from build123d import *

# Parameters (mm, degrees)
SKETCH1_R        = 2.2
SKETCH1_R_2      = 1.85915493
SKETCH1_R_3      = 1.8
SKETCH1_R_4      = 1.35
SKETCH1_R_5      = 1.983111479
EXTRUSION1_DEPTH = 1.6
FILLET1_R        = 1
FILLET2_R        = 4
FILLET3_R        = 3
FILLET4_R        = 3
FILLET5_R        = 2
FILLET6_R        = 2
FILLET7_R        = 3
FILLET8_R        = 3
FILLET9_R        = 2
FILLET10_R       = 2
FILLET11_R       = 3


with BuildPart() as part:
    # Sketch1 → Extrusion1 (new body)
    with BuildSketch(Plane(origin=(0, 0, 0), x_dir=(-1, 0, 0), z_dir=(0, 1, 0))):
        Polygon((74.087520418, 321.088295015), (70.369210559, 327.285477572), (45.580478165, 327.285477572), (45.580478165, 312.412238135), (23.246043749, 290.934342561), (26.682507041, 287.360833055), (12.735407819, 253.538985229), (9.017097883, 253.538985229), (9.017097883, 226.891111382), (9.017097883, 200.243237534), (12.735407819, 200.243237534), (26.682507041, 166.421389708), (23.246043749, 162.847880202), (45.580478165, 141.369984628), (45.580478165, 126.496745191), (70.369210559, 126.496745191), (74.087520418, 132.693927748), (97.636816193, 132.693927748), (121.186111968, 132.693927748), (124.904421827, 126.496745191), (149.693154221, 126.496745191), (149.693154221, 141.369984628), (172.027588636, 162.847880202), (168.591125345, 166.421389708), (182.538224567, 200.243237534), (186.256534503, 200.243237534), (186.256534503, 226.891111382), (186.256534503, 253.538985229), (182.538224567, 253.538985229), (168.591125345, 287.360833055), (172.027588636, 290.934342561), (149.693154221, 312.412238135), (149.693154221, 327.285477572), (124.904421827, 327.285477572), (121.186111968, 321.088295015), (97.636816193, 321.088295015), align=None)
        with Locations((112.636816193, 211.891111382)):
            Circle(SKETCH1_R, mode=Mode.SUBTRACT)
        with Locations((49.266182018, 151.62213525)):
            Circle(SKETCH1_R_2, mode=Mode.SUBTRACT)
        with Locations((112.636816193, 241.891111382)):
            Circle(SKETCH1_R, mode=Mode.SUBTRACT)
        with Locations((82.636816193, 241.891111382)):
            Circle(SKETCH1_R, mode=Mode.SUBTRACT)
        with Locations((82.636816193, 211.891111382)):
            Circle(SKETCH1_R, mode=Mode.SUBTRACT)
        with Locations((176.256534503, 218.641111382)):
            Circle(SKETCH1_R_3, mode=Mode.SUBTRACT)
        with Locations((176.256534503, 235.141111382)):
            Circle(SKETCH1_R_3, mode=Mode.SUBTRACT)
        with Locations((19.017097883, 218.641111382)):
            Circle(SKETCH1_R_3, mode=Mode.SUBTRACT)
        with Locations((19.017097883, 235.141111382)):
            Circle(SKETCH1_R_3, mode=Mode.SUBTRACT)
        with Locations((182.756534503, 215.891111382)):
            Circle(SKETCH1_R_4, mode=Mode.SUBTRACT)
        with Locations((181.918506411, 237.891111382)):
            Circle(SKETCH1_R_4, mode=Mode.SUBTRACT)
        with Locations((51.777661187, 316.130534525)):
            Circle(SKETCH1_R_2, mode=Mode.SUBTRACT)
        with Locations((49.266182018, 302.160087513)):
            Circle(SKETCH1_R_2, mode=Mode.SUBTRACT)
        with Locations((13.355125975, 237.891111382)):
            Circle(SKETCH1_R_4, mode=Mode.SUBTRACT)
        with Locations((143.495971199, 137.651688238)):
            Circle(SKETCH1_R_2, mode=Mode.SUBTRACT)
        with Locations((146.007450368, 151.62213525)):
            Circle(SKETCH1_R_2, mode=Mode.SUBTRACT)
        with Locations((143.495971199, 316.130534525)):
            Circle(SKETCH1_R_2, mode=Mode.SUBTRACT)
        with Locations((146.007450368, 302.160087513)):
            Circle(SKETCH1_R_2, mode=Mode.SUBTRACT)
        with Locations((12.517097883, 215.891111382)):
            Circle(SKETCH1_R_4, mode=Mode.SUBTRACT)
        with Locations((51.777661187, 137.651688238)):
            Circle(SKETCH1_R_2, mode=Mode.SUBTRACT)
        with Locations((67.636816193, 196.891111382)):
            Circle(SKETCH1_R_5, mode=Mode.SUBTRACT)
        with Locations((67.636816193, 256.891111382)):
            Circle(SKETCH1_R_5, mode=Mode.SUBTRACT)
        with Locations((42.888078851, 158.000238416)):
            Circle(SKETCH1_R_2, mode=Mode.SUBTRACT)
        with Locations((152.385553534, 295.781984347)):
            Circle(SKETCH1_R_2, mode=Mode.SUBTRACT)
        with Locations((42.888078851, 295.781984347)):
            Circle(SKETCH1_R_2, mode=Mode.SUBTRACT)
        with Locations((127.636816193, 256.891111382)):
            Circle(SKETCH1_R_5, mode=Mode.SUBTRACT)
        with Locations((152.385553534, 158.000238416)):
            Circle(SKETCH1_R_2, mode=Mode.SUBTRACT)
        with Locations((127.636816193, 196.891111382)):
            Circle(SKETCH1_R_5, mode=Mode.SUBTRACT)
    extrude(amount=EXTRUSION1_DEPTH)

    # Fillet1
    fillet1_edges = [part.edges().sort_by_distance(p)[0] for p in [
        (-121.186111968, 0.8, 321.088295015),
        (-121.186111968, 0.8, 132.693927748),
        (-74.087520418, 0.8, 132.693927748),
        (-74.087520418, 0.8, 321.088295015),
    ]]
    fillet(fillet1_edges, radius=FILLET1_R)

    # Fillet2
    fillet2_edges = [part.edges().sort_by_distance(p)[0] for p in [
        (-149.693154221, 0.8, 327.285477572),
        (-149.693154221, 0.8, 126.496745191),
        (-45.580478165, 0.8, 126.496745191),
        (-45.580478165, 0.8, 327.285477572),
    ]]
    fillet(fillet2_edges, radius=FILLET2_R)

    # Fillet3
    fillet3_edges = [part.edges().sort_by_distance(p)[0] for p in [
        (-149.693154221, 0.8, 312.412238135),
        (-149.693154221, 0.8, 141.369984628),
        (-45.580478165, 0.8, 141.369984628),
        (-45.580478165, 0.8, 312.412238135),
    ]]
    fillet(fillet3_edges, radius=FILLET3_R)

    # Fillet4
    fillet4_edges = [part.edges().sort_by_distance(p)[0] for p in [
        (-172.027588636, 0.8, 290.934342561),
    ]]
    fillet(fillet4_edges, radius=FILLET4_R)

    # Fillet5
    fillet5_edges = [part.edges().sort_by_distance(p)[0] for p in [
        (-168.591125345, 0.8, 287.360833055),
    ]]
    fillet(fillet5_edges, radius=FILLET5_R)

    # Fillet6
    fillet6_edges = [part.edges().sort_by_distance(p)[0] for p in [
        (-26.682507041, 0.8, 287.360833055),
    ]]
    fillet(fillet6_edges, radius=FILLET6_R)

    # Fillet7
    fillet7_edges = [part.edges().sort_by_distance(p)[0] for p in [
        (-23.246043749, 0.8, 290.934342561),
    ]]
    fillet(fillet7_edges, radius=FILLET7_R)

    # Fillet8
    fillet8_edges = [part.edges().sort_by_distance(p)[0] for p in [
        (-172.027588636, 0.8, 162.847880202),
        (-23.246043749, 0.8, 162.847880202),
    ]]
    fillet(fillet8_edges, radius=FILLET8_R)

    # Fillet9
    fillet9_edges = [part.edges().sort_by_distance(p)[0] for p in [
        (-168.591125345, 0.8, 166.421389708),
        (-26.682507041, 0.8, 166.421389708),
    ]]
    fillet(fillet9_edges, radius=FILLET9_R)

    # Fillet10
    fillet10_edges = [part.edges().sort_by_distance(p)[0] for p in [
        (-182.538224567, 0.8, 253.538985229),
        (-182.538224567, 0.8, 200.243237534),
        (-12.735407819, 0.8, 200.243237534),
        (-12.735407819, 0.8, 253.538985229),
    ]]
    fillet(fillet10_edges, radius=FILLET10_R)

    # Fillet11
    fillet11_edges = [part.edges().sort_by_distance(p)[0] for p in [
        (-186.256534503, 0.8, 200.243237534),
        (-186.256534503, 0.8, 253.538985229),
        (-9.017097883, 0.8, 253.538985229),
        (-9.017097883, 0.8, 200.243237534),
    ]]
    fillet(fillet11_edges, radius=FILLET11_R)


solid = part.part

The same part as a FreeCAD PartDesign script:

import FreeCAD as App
import Part
import Sketcher
from FreeCAD import Vector
Q = App.Units.Quantity


def edges_at(feature, points):
    """Names of the edges that pass closest to the given points."""
    edges = feature.Shape.Edges
    near = lambda p: min(range(len(edges)), key=lambda i: edges[i].distToShape(Part.Vertex(*p))[0])
    return sorted({f"Edge{near(p) + 1}" for p in points})

doc = App.newDocument("Part")
params = doc.addObject("Spreadsheet::Sheet", "Params")
for row, (alias, value) in enumerate([
    ("sketch1_diameter", "2.7 mm"),
    ("sketch1_diameter2", "3.6 mm"),
    ("sketch1_diameter3", "4.4 mm"),
    ("pad1_length", "1.6 mm"),
    ("fillet_radius", "1 mm"),
    ("fillet2_radius", "4 mm"),
    ("fillet3_radius", "3 mm"),
    ("fillet4_radius", "3 mm"),
    ("fillet5_radius", "2 mm"),
    ("fillet6_radius", "2 mm"),
    ("fillet7_radius", "3 mm"),
    ("fillet8_radius", "3 mm"),
    ("fillet9_radius", "2 mm"),
    ("fillet10_radius", "2 mm"),
    ("fillet11_radius", "3 mm"),
], start=1):
    params.set(f"A{row}", alias)
    params.set(f"B{row}", "=" + value)
    params.setAlias(f"B{row}", alias)

body = doc.addObject("PartDesign::Body", "Body")

# Sketch on XZ plane
sketch1 = body.newObject("Sketcher::SketchObject", "Sketch")
sketch1.AttachmentSupport = (doc.getObject("XZ_Plane"), [""])
sketch1.MapMode = "FlatFace"
sketch1.addGeometry(Part.LineSegment(Vector(-74.1, 321.1, 0), Vector(-70.4, 327.3, 0)), False)
sketch1.addGeometry(Part.LineSegment(Vector(-70.4, 327.3, 0), Vector(-45.6, 327.3, 0)), False)
sketch1.addGeometry(Part.LineSegment(Vector(-45.6, 327.3, 0), Vector(-45.6, 312.4, 0)), False)
sketch1.addGeometry(Part.LineSegment(Vector(-45.6, 312.4, 0), Vector(-23.2, 290.9, 0)), False)
sketch1.addGeometry(Part.LineSegment(Vector(-23.2, 290.9, 0), Vector(-26.7, 287.4, 0)), False)
sketch1.addGeometry(Part.LineSegment(Vector(-26.7, 287.4, 0), Vector(-12.7, 253.5, 0)), False)
sketch1.addGeometry(Part.LineSegment(Vector(-12.7, 253.5, 0), Vector(-9, 253.5, 0)), False)
sketch1.addGeometry(Part.LineSegment(Vector(-9, 253.5, 0), Vector(-9, 200.2, 0)), False)
sketch1.addGeometry(Part.LineSegment(Vector(-9, 200.2, 0), Vector(-12.7, 200.2, 0)), False)
sketch1.addGeometry(Part.LineSegment(Vector(-12.7, 200.2, 0), Vector(-26.7, 166.4, 0)), False)
sketch1.addGeometry(Part.LineSegment(Vector(-26.7, 166.4, 0), Vector(-23.2, 162.8, 0)), False)
sketch1.addGeometry(Part.LineSegment(Vector(-23.2, 162.8, 0), Vector(-45.6, 141.4, 0)), False)
sketch1.addGeometry(Part.LineSegment(Vector(-45.6, 141.4, 0), Vector(-45.6, 126.5, 0)), False)
sketch1.addGeometry(Part.LineSegment(Vector(-45.6, 126.5, 0), Vector(-70.4, 126.5, 0)), False)
sketch1.addGeometry(Part.LineSegment(Vector(-70.4, 126.5, 0), Vector(-74.1, 132.7, 0)), False)
sketch1.addGeometry(Part.LineSegment(Vector(-74.1, 132.7, 0), Vector(-121.2, 132.7, 0)), False)
sketch1.addGeometry(Part.LineSegment(Vector(-121.2, 132.7, 0), Vector(-124.9, 126.5, 0)), False)
sketch1.addGeometry(Part.LineSegment(Vector(-124.9, 126.5, 0), Vector(-149.7, 126.5, 0)), False)
sketch1.addGeometry(Part.LineSegment(Vector(-149.7, 126.5, 0), Vector(-149.7, 141.4, 0)), False)
sketch1.addGeometry(Part.LineSegment(Vector(-149.7, 141.4, 0), Vector(-172, 162.8, 0)), False)
sketch1.addGeometry(Part.LineSegment(Vector(-172, 162.8, 0), Vector(-168.6, 166.4, 0)), False)
sketch1.addGeometry(Part.LineSegment(Vector(-168.6, 166.4, 0), Vector(-182.5, 200.2, 0)), False)
sketch1.addGeometry(Part.LineSegment(Vector(-182.5, 200.2, 0), Vector(-186.3, 200.2, 0)), False)
sketch1.addGeometry(Part.LineSegment(Vector(-186.3, 200.2, 0), Vector(-186.3, 253.5, 0)), False)
sketch1.addGeometry(Part.LineSegment(Vector(-186.3, 253.5, 0), Vector(-182.5, 253.5, 0)), False)
sketch1.addGeometry(Part.LineSegment(Vector(-182.5, 253.5, 0), Vector(-168.6, 287.4, 0)), False)
sketch1.addGeometry(Part.LineSegment(Vector(-168.6, 287.4, 0), Vector(-172, 290.9, 0)), False)
sketch1.addGeometry(Part.LineSegment(Vector(-172, 290.9, 0), Vector(-149.7, 312.4, 0)), False)
sketch1.addGeometry(Part.LineSegment(Vector(-149.7, 312.4, 0), Vector(-149.7, 327.3, 0)), False)
sketch1.addGeometry(Part.LineSegment(Vector(-149.7, 327.3, 0), Vector(-124.9, 327.3, 0)), False)
sketch1.addGeometry(Part.LineSegment(Vector(-124.9, 327.3, 0), Vector(-121.2, 321.1, 0)), False)
sketch1.addGeometry(Part.LineSegment(Vector(-121.2, 321.1, 0), Vector(-74.1, 321.1, 0)), False)
sketch1.addGeometry(Part.Circle(Vector(-51.8, 137.7, 0), Vector(0, 0, 1), 1.9), False)
sketch1.addGeometry(Part.Circle(Vector(-42.9, 158, 0), Vector(0, 0, 1), 1.9), False)
sketch1.addGeometry(Part.Circle(Vector(-49.3, 151.6, 0), Vector(0, 0, 1), 1.9), False)
sketch1.addGeometry(Part.Circle(Vector(-12.5, 215.9, 0), Vector(0, 0, 1), 1.4), False)
sketch1.addGeometry(Part.Circle(Vector(-19, 218.6, 0), Vector(0, 0, 1), 1.8), False)
sketch1.addGeometry(Part.Circle(Vector(-67.6, 196.9, 0), Vector(0, 0, 1), 2), False)
sketch1.addGeometry(Part.Circle(Vector(-82.6, 211.9, 0), Vector(0, 0, 1), 2.2), False)
sketch1.addGeometry(Part.Circle(Vector(-143.5, 137.7, 0), Vector(0, 0, 1), 1.9), False)
sketch1.addGeometry(Part.Circle(Vector(-146, 151.6, 0), Vector(0, 0, 1), 1.9), False)
sketch1.addGeometry(Part.Circle(Vector(-152.4, 158, 0), Vector(0, 0, 1), 1.9), False)
sketch1.addGeometry(Part.Circle(Vector(-127.6, 196.9, 0), Vector(0, 0, 1), 2), False)
sketch1.addGeometry(Part.Circle(Vector(-112.6, 211.9, 0), Vector(0, 0, 1), 2.2), False)
sketch1.addGeometry(Part.Circle(Vector(-176.3, 218.6, 0), Vector(0, 0, 1), 1.8), False)
sketch1.addGeometry(Part.Circle(Vector(-182.8, 215.9, 0), Vector(0, 0, 1), 1.4), False)
sketch1.addGeometry(Part.Circle(Vector(-13.4, 237.9, 0), Vector(0, 0, 1), 1.4), False)
sketch1.addGeometry(Part.Circle(Vector(-19, 235.1, 0), Vector(0, 0, 1), 1.8), False)
sketch1.addGeometry(Part.Circle(Vector(-82.6, 241.9, 0), Vector(0, 0, 1), 2.2), False)
sketch1.addGeometry(Part.Circle(Vector(-67.6, 256.9, 0), Vector(0, 0, 1), 2), False)
sketch1.addGeometry(Part.Circle(Vector(-42.9, 295.8, 0), Vector(0, 0, 1), 1.9), False)
sketch1.addGeometry(Part.Circle(Vector(-49.3, 302.2, 0), Vector(0, 0, 1), 1.9), False)
sketch1.addGeometry(Part.Circle(Vector(-51.8, 316.1, 0), Vector(0, 0, 1), 1.9), False)
sketch1.addGeometry(Part.Circle(Vector(-112.6, 241.9, 0), Vector(0, 0, 1), 2.2), False)
sketch1.addGeometry(Part.Circle(Vector(-127.6, 256.9, 0), Vector(0, 0, 1), 2), False)
sketch1.addGeometry(Part.Circle(Vector(-176.3, 235.1, 0), Vector(0, 0, 1), 1.8), False)
sketch1.addGeometry(Part.Circle(Vector(-181.9, 237.9, 0), Vector(0, 0, 1), 1.4), False)
sketch1.addGeometry(Part.Circle(Vector(-146, 302.2, 0), Vector(0, 0, 1), 1.9), False)
sketch1.addGeometry(Part.Circle(Vector(-152.4, 295.8, 0), Vector(0, 0, 1), 1.9), False)
sketch1.addGeometry(Part.Circle(Vector(-143.5, 316.1, 0), Vector(0, 0, 1), 1.9), False)
sketch1.addConstraint(Sketcher.Constraint("Coincident", 0, 2, 1, 1))
sketch1.addConstraint(Sketcher.Constraint("Coincident", 1, 2, 2, 1))
sketch1.addConstraint(Sketcher.Constraint("Coincident", 2, 2, 3, 1))
sketch1.addConstraint(Sketcher.Constraint("Coincident", 3, 2, 4, 1))
sketch1.addConstraint(Sketcher.Constraint("Coincident", 4, 2, 5, 1))
sketch1.addConstraint(Sketcher.Constraint("Coincident", 5, 2, 6, 1))
sketch1.addConstraint(Sketcher.Constraint("Coincident", 6, 2, 7, 1))
sketch1.addConstraint(Sketcher.Constraint("Coincident", 7, 2, 8, 1))
sketch1.addConstraint(Sketcher.Constraint("Coincident", 8, 2, 9, 1))
sketch1.addConstraint(Sketcher.Constraint("Coincident", 9, 2, 10, 1))
sketch1.addConstraint(Sketcher.Constraint("Coincident", 10, 2, 11, 1))
sketch1.addConstraint(Sketcher.Constraint("Coincident", 11, 2, 12, 1))
sketch1.addConstraint(Sketcher.Constraint("Coincident", 12, 2, 13, 1))
sketch1.addConstraint(Sketcher.Constraint("Coincident", 13, 2, 14, 1))
sketch1.addConstraint(Sketcher.Constraint("Coincident", 14, 2, 15, 1))
sketch1.addConstraint(Sketcher.Constraint("Coincident", 15, 2, 16, 1))
sketch1.addConstraint(Sketcher.Constraint("Coincident", 16, 2, 17, 1))
sketch1.addConstraint(Sketcher.Constraint("Coincident", 17, 2, 18, 1))
sketch1.addConstraint(Sketcher.Constraint("Coincident", 18, 2, 19, 1))
sketch1.addConstraint(Sketcher.Constraint("Coincident", 19, 2, 20, 1))
sketch1.addConstraint(Sketcher.Constraint("Coincident", 20, 2, 21, 1))
sketch1.addConstraint(Sketcher.Constraint("Coincident", 21, 2, 22, 1))
sketch1.addConstraint(Sketcher.Constraint("Coincident", 22, 2, 23, 1))
sketch1.addConstraint(Sketcher.Constraint("Coincident", 23, 2, 24, 1))
sketch1.addConstraint(Sketcher.Constraint("Coincident", 24, 2, 25, 1))
sketch1.addConstraint(Sketcher.Constraint("Coincident", 25, 2, 26, 1))
sketch1.addConstraint(Sketcher.Constraint("Coincident", 26, 2, 27, 1))
sketch1.addConstraint(Sketcher.Constraint("Coincident", 27, 2, 28, 1))
sketch1.addConstraint(Sketcher.Constraint("Coincident", 28, 2, 29, 1))
sketch1.addConstraint(Sketcher.Constraint("Coincident", 29, 2, 30, 1))
sketch1.addConstraint(Sketcher.Constraint("Coincident", 30, 2, 31, 1))
sketch1.addConstraint(Sketcher.Constraint("Coincident", 31, 2, 0, 1))
sketch1.addConstraint(Sketcher.Constraint("Horizontal", 1))
sketch1.addConstraint(Sketcher.Constraint("Vertical", 2))
sketch1.addConstraint(Sketcher.Constraint("Horizontal", 6))
sketch1.addConstraint(Sketcher.Constraint("Vertical", 7))
sketch1.addConstraint(Sketcher.Constraint("Horizontal", 8))
sketch1.addConstraint(Sketcher.Constraint("Vertical", 12))
sketch1.addConstraint(Sketcher.Constraint("Horizontal", 13))
sketch1.addConstraint(Sketcher.Constraint("Horizontal", 15))
sketch1.addConstraint(Sketcher.Constraint("Horizontal", 17))
sketch1.addConstraint(Sketcher.Constraint("Vertical", 18))
sketch1.addConstraint(Sketcher.Constraint("Horizontal", 22))
sketch1.addConstraint(Sketcher.Constraint("Vertical", 23))
sketch1.addConstraint(Sketcher.Constraint("Horizontal", 24))
sketch1.addConstraint(Sketcher.Constraint("Vertical", 28))
sketch1.addConstraint(Sketcher.Constraint("Horizontal", 29))
sketch1.addConstraint(Sketcher.Constraint("Horizontal", 31))
sketch1.addConstraint(Sketcher.Constraint("Equal", 32, 33))
sketch1.addConstraint(Sketcher.Constraint("Equal", 33, 34))
sketch1.addConstraint(Sketcher.Constraint("Equal", 34, 39))
sketch1.addConstraint(Sketcher.Constraint("Equal", 39, 40))
sketch1.addConstraint(Sketcher.Constraint("Equal", 40, 41))
sketch1.addConstraint(Sketcher.Constraint("Equal", 37, 42))
sketch1.addConstraint(Sketcher.Constraint("Equal", 38, 43))
sketch1.addConstraint(Sketcher.Constraint("Equal", 36, 44))
sketch1.addConstraint(Sketcher.Constraint("Equal", 35, 45))
sketch1.addConstraint(Sketcher.Constraint("Equal", 45, 46))
sketch1.addConstraint(Sketcher.Constraint("Equal", 44, 47))
sketch1.addConstraint(Sketcher.Constraint("Equal", 43, 48))
sketch1.addConstraint(Sketcher.Constraint("Equal", 42, 49))
sketch1.addConstraint(Sketcher.Constraint("Equal", 41, 50))
sketch1.addConstraint(Sketcher.Constraint("Equal", 50, 51))
sketch1.addConstraint(Sketcher.Constraint("Equal", 51, 52))
sketch1.addConstraint(Sketcher.Constraint("Equal", 48, 53))
sketch1.addConstraint(Sketcher.Constraint("Equal", 49, 54))
sketch1.addConstraint(Sketcher.Constraint("Equal", 47, 55))
sketch1.addConstraint(Sketcher.Constraint("Equal", 46, 56))
sketch1.addConstraint(Sketcher.Constraint("Equal", 52, 57))
sketch1.addConstraint(Sketcher.Constraint("Equal", 57, 58))
sketch1.addConstraint(Sketcher.Constraint("Equal", 58, 59))
sketch1.addConstraint(Sketcher.Constraint("Perpendicular", 3, 4))
sketch1.addConstraint(Sketcher.Constraint("Perpendicular", 10, 11))
sketch1.addConstraint(Sketcher.Constraint("Parallel", 0, 16))
sketch1.addConstraint(Sketcher.Constraint("Perpendicular", 4, 19))
sketch1.addConstraint(Sketcher.Constraint("Perpendicular", 19, 20))
sketch1.addConstraint(Sketcher.Constraint("Parallel", 5, 21))
sketch1.addConstraint(Sketcher.Constraint("Parallel", 9, 25))
sketch1.addConstraint(Sketcher.Constraint("Perpendicular", 11, 26))
sketch1.addConstraint(Sketcher.Constraint("Perpendicular", 26, 27))
sketch1.addConstraint(Sketcher.Constraint("Parallel", 14, 30))
sketch1.addConstraint(Sketcher.Constraint("Horizontal", 32, 3, 39, 3))
sketch1.addConstraint(Sketcher.Constraint("Horizontal", 34, 3, 40, 3))
sketch1.addConstraint(Sketcher.Constraint("Horizontal", 33, 3, 41, 3))
sketch1.addConstraint(Sketcher.Constraint("Horizontal", 37, 3, 42, 3))
sketch1.addConstraint(Sketcher.Constraint("Horizontal", 38, 3, 43, 3))
sketch1.addConstraint(Sketcher.Constraint("Horizontal", 36, 3, 44, 3))
sketch1.addConstraint(Sketcher.Constraint("Horizontal", 35, 3, 45, 3))
sketch1.addConstraint(Sketcher.Constraint("Horizontal", 48, 3, 53, 3))
sketch1.addConstraint(Sketcher.Constraint("Horizontal", 49, 3, 54, 3))
sketch1.addConstraint(Sketcher.Constraint("Horizontal", 47, 3, 55, 3))
sketch1.addConstraint(Sketcher.Constraint("Horizontal", 46, 3, 56, 3))
sketch1.addConstraint(Sketcher.Constraint("Horizontal", 51, 3, 57, 3))
sketch1.addConstraint(Sketcher.Constraint("Horizontal", 50, 3, 58, 3))
sketch1.addConstraint(Sketcher.Constraint("Horizontal", 52, 3, 59, 3))
sketch1.addConstraint(Sketcher.Constraint("Horizontal", 13, 2, 16, 2))
sketch1.addConstraint(Sketcher.Constraint("Horizontal", 11, 2, 18, 2))
sketch1.addConstraint(Sketcher.Constraint("Horizontal", 10, 2, 19, 2))
sketch1.addConstraint(Sketcher.Constraint("Horizontal", 9, 2, 20, 2))
sketch1.addConstraint(Sketcher.Constraint("Horizontal", 8, 2, 21, 2))
sketch1.addConstraint(Sketcher.Constraint("Horizontal", 6, 2, 23, 2))
sketch1.addConstraint(Sketcher.Constraint("Horizontal", 4, 2, 25, 2))
sketch1.addConstraint(Sketcher.Constraint("Horizontal", 3, 2, 26, 2))
sketch1.addConstraint(Sketcher.Constraint("Horizontal", 2, 2, 27, 2))
sketch1.addConstraint(Sketcher.Constraint("Horizontal", 1, 2, 28, 2))
sketch1.addConstraint(Sketcher.Constraint("Vertical", 36, 3, 47, 3))
sketch1.addConstraint(Sketcher.Constraint("Vertical", 38, 3, 48, 3))
sketch1.addConstraint(Sketcher.Constraint("Vertical", 37, 3, 49, 3))
sketch1.addConstraint(Sketcher.Constraint("Vertical", 33, 3, 50, 3))
sketch1.addConstraint(Sketcher.Constraint("Vertical", 34, 3, 51, 3))
sketch1.addConstraint(Sketcher.Constraint("Vertical", 32, 3, 52, 3))
sketch1.addConstraint(Sketcher.Constraint("Vertical", 43, 3, 53, 3))
sketch1.addConstraint(Sketcher.Constraint("Vertical", 42, 3, 54, 3))
sketch1.addConstraint(Sketcher.Constraint("Vertical", 44, 3, 55, 3))
sketch1.addConstraint(Sketcher.Constraint("Vertical", 40, 3, 57, 3))
sketch1.addConstraint(Sketcher.Constraint("Vertical", 41, 3, 58, 3))
sketch1.addConstraint(Sketcher.Constraint("Vertical", 39, 3, 59, 3))
sketch1.addConstraint(Sketcher.Constraint("Vertical", 5, 2, 8, 2))
sketch1.addConstraint(Sketcher.Constraint("Vertical", 4, 2, 9, 2))
sketch1.addConstraint(Sketcher.Constraint("Vertical", 3, 2, 10, 2))
sketch1.addConstraint(Sketcher.Constraint("Vertical", 2, 2, 11, 2))
sketch1.addConstraint(Sketcher.Constraint("Vertical", 0, 2, 13, 2))
sketch1.addConstraint(Sketcher.Constraint("Vertical", 21, 2, 24, 2))
sketch1.addConstraint(Sketcher.Constraint("Vertical", 20, 2, 25, 2))
sketch1.addConstraint(Sketcher.Constraint("Vertical", 19, 2, 26, 2))
sketch1.addConstraint(Sketcher.Constraint("Vertical", 16, 2, 29, 2))
sketch1.addConstraint(Sketcher.Constraint("Vertical", 15, 2, 30, 2))
sketch1.addConstraint(Sketcher.Constraint("Vertical", 14, 2, 31, 2))
sketch1.addConstraint(Sketcher.Constraint("Equal", 13, 17))
sketch1.addConstraint(Sketcher.Constraint("Equal", 8, 22))
sketch1.addConstraint(Sketcher.Constraint("Equal", 2, 12))
sketch1.addConstraint(Sketcher.Constraint("Diameter", 35, 2.7))
sketch1.addConstraint(Sketcher.Constraint("Diameter", 36, 3.6))
sketch1.addConstraint(Sketcher.Constraint("Diameter", 38, 4.4))
sketch1.addConstraint(Sketcher.Constraint("DistanceY", 37, 3, 35, 3, 19.0))
sketch1.addConstraint(Sketcher.Constraint("DistanceX", 38, 3, 37, 3, 15.0))
sketch1.addConstraint(Sketcher.Constraint("DistanceY", 37, 3, 38, 3, 15.0))
sketch1.addConstraint(Sketcher.Constraint("DistanceX", 42, 3, 38, 3, 45.0))
sketch1.addConstraint(Sketcher.Constraint("DistanceX", 42, 3, 43, 3, 15.0))
sketch1.addConstraint(Sketcher.Constraint("DistanceY", 35, 3, 46, 3, 22.0))
sketch1.addConstraint(Sketcher.Constraint("DistanceY", 38, 3, 48, 3, 30.0))
sketch1.addConstraint(Sketcher.Constraint("DistanceY", 48, 3, 49, 3, 15.0))
sketch1.addConstraint(Sketcher.Constraint("DistanceX", 47, 3, 6, 2, 10.0))
sketch1.addConstraint(Sketcher.Constraint("DistanceX", 22, 2, 44, 3, 10.0))
sketch1.addConstraint(Sketcher.Constraint("Angle", 3, Q("-43.88 deg")))
sketch1.addConstraint(Sketcher.Constraint("DistanceX", 36, 3, 35, 3, 6.5))
sketch1.addConstraint(Sketcher.Constraint("DistanceX", 45, 3, 44, 3, 6.5))
sketch1.addConstraint(Sketcher.Constraint("DistanceY", 36, 3, 47, 3, 16.5))
sketch1.addConstraint(Sketcher.Constraint("Diameter", 32, 3.71831))
sketch1.addConstraint(Sketcher.Constraint("DistanceY", 35, 3, 36, 3, 2.75))
sketch1.addConstraint(Sketcher.Constraint("Diameter", 37, 3.966223))
sketch1.addConstraint(Sketcher.Constraint("DistanceX", 6, 1, 6, 2, 3.71831))
sketch1.addConstraint(Sketcher.Constraint("DistanceX", 15, 2, 15, 1, 47.098592))
sketch1.addConstraint(Sketcher.Constraint("DistanceY", 2, 2, 2, 1, 14.873239))
sketch1.addConstraint(Sketcher.Constraint("DistanceX", 1, 2, 50, 3, 2.692399))
sketch1.addConstraint(Sketcher.Constraint("DistanceY", 4, 2, 52, 3, 28.769701))
sketch1.addConstraint(Sketcher.Constraint("DistanceX", 4, 2, 5, 2, 13.947099))
sketch1.addConstraint(Sketcher.Constraint("DistanceY", 32, 3, 9, 2, 28.769701))
sketch1.addConstraint(Sketcher.Constraint("DistanceX", 15, 2, 13, 2, 50.816901))
sketch1.addConstraint(Sketcher.Constraint("DistanceX", 41, 3, 17, 2, 2.692399))
sketch1.addConstraint(Sketcher.Constraint("DistanceX", 1, 1, 1, 2, 24.788732))
sketch1.addConstraint(Sketcher.Constraint("DistanceY", 7, 2, 7, 1, 53.295748))
sketch1.addConstraint(Sketcher.Constraint("DistanceX", 32, 3, -1, 1, 51.777661))
sketch1.addConstraint(Sketcher.Constraint("DistanceY", -1, 1, 32, 3, 137.651688))
sketch1.addConstraint(Sketcher.Constraint("DistanceX", 33, 3, -1, 1, 42.888079))
sketch1.addConstraint(Sketcher.Constraint("DistanceY", -1, 1, 33, 3, 158.000238))
sketch1.addConstraint(Sketcher.Constraint("DistanceY", -1, 1, 35, 3, 215.891111))
sketch1.addConstraint(Sketcher.Constraint("DistanceX", 39, 3, -1, 1, 143.495971))
sketch1.addConstraint(Sketcher.Constraint("DistanceX", 40, 3, -1, 1, 146.00745))
sketch1.addConstraint(Sketcher.Constraint("DistanceY", -1, 1, 2, 2, 312.412238))
sketch1.addConstraint(Sketcher.Constraint("DistanceY", -1, 1, 10, 2, 162.84788))
sketch1.addConstraint(Sketcher.Constraint("DistanceX", 19, 2, -1, 1, 172.027589))
sketch1.addConstraint(Sketcher.Constraint("DistanceX", 32, 3, 34, 3, 2.511479))
sketch1.addConstraint(Sketcher.Constraint("DistanceX", 37, 3, 36, 3, 48.619718))
sketch1.addConstraint(Sketcher.Constraint("DistanceX", 36, 3, 46, 3, 5.661972))
sketch1.addConstraint(Sketcher.Constraint("DistanceY", 50, 3, 52, 3, 20.34855))
sketch1.addConstraint(Sketcher.Constraint("DistanceX", 56, 3, 55, 3, 5.661972))
sketch1.addConstraint(Sketcher.Constraint("DistanceY", 51, 3, 0, 2, 25.12539))
sketch1.addConstraint(Sketcher.Constraint("DistanceY", 11, 2, 34, 3, 10.252151))
sketch1.addConstraint(Sketcher.Constraint("DistanceY", 14, 2, 32, 3, 4.95776))
sketch1.setExpression("Constraints[131]", "Params.sketch1_diameter")
sketch1.setExpression("Constraints[132]", "Params.sketch1_diameter2")
sketch1.setExpression("Constraints[133]", "Params.sketch1_diameter3")
pad1 = body.newObject("PartDesign::Pad", "Pad")
pad1.Profile = sketch1
pad1.setExpression("Length", "Params.pad1_length")
pad1.Reversed = True
doc.recompute()

fillet = body.newObject("PartDesign::Fillet", "Fillet")
fillet.Base = (pad1, edges_at(pad1, [
    (-121.186, 0.8, 321.088),
    (-121.186, 0.8, 132.694),
    (-74.088, 0.8, 132.694),
    (-74.088, 0.8, 321.088),
]))
fillet.setExpression("Radius", "Params.fillet_radius")
doc.recompute()

fillet2 = body.newObject("PartDesign::Fillet", "Fillet001")
fillet2.Base = (fillet, edges_at(fillet, [
    (-149.693, 0.8, 327.285),
    (-149.693, 0.8, 126.497),
    (-45.58, 0.8, 126.497),
    (-45.58, 0.8, 327.285),
]))
fillet2.setExpression("Radius", "Params.fillet2_radius")
doc.recompute()

fillet3 = body.newObject("PartDesign::Fillet", "Fillet002")
fillet3.Base = (fillet2, edges_at(fillet2, [
    (-149.693, 0.8, 312.412),
    (-149.693, 0.8, 141.37),
    (-45.58, 0.8, 141.37),
    (-45.58, 0.8, 312.412),
]))
fillet3.setExpression("Radius", "Params.fillet3_radius")
doc.recompute()

fillet4 = body.newObject("PartDesign::Fillet", "Fillet003")
fillet4.Base = (fillet3, edges_at(fillet3, [(-172.028, 0.8, 290.934)]))
fillet4.setExpression("Radius", "Params.fillet4_radius")
doc.recompute()

fillet5 = body.newObject("PartDesign::Fillet", "Fillet004")
fillet5.Base = (fillet4, edges_at(fillet4, [(-168.591, 0.8, 287.361)]))
fillet5.setExpression("Radius", "Params.fillet5_radius")
doc.recompute()

fillet6 = body.newObject("PartDesign::Fillet", "Fillet005")
fillet6.Base = (fillet5, edges_at(fillet5, [(-26.683, 0.8, 287.361)]))
fillet6.setExpression("Radius", "Params.fillet6_radius")
doc.recompute()

fillet7 = body.newObject("PartDesign::Fillet", "Fillet006")
fillet7.Base = (fillet6, edges_at(fillet6, [(-23.246, 0.8, 290.934)]))
fillet7.setExpression("Radius", "Params.fillet7_radius")
doc.recompute()

fillet8 = body.newObject("PartDesign::Fillet", "Fillet007")
fillet8.Base = (fillet7, edges_at(fillet7, [(-172.028, 0.8, 162.848), (-23.246, 0.8, 162.848)]))
fillet8.setExpression("Radius", "Params.fillet8_radius")
doc.recompute()

fillet9 = body.newObject("PartDesign::Fillet", "Fillet008")
fillet9.Base = (fillet8, edges_at(fillet8, [(-168.591, 0.8, 166.421), (-26.683, 0.8, 166.421)]))
fillet9.setExpression("Radius", "Params.fillet9_radius")
doc.recompute()

fillet10 = body.newObject("PartDesign::Fillet", "Fillet009")
fillet10.Base = (fillet9, edges_at(fillet9, [
    (-182.538, 0.8, 253.539),
    (-182.538, 0.8, 200.243),
    (-12.735, 0.8, 200.243),
    (-12.735, 0.8, 253.539),
]))
fillet10.setExpression("Radius", "Params.fillet10_radius")
doc.recompute()

fillet11 = body.newObject("PartDesign::Fillet", "Fillet010")
fillet11.Base = (fillet10, edges_at(fillet10, [
    (-186.257, 0.8, 200.243),
    (-186.257, 0.8, 253.539),
    (-9.017, 0.8, 253.539),
    (-9.017, 0.8, 200.243),
]))
fillet11.setExpression("Radius", "Params.fillet11_radius")

doc.recompute()
